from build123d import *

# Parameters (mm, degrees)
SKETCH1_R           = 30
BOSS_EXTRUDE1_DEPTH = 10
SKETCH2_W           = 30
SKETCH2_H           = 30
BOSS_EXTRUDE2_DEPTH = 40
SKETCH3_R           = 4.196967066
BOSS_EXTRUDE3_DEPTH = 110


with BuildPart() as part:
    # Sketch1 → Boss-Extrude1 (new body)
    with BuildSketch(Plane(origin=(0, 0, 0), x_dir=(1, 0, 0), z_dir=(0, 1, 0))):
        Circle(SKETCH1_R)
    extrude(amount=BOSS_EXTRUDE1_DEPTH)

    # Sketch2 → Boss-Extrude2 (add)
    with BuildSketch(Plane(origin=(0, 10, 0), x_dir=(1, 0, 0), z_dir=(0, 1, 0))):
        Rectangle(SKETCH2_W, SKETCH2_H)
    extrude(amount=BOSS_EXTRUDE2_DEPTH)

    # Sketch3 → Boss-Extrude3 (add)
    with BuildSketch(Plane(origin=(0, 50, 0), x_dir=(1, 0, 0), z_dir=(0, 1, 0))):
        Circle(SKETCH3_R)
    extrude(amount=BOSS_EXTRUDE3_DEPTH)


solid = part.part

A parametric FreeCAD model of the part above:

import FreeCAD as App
import Part
import Sketcher
from FreeCAD import Vector


def add_polygon(sketch, points):
    """Adds a closed chain of lines whose ends are joined by coincident constraints."""
    first, n = sketch.GeometryCount, len(points)
    for a, b in zip(points, points[1:] + points[:1]):
        sketch.addGeometry(Part.LineSegment(App.Vector(*a, 0), App.Vector(*b, 0)), False)
    for i in range(n):
        sketch.addConstraint(Sketcher.Constraint("Coincident", first + i, 2, first + (i + 1) % n, 1))

doc = App.newDocument("Part")
params = doc.addObject("Spreadsheet::Sheet", "Params")
for row, (alias, value) in enumerate([
    ("sketch1_diameter", "60 mm"),
    ("pad1_length", "10 mm"),
    ("sketch2_width", "30 mm"),
    ("pad2_length", "40 mm"),
    ("pad3_length", "110 mm"),
], start=1):
    params.set(f"A{row}", alias)
    params.set(f"B{row}", "=" + value)
    params.setAlias(f"B{row}", alias)

body = doc.addObject("PartDesign::Body", "Body")

sketch1 = body.newObject("Sketcher::SketchObject", "Sketch")
sketch1.AttachmentSupport = (doc.getObject("XZ_Plane"), [""])
sketch1.MapMode = "FlatFace"
sketch1.addGeometry(Part.Circle(Vector(0, 0, 0), Vector(0, 0, 1), 30), False)
sketch1.addConstraint(Sketcher.Constraint("Coincident", 0, 3, -1, 1))
sketch1.addConstraint(Sketcher.Constraint("Diameter", 0, 60.0))
sketch1.setExpression("Constraints[1]", "Params.sketch1_diameter")
pad1 = body.newObject("PartDesign::Pad", "Pad")
pad1.Profile = sketch1
pad1.setExpression("Length", "Params.pad1_length")
pad1.Reversed = True

sketch2 = body.newObject("Sketcher::SketchObject", "Sketch001")
sketch2.AttachmentSupport = (doc.getObject("XZ_Plane"), [""])
sketch2.MapMode = "FlatFace"
sketch2.AttachmentOffset = App.Placement(Vector(0, 0, -10), App.Rotation())
add_polygon(sketch2, [(-15, -15), (-15, 15), (15, 15), (15, -15)])
sketch2.addConstraint(Sketcher.Constraint("Vertical", 0))
sketch2.addConstraint(Sketcher.Constraint("Horizontal", 1))
sketch2.addConstraint(Sketcher.Constraint("Vertical", 2))
sketch2.addConstraint(Sketcher.Constraint("Horizontal", 3))
sketch2.addConstraint(Sketcher.Constraint("Symmetric", 0, 2, 2, 2, -1, 1))
sketch2.addConstraint(Sketcher.Constraint("Equal", 3, 0))
sketch2.addConstraint(Sketcher.Constraint("DistanceX", 1, 1, 1, 2, 30.0))
sketch2.setExpression("Constraints[10]", "Params.sketch2_width")
pad2 = body.newObject("PartDesign::Pad", "Pad001")
pad2.Profile = sketch2
pad2.setExpression("Length", "Params.pad2_length")
pad2.Reversed = True

sketch3 = body.newObject("Sketcher::SketchObject", "Sketch002")
sketch3.AttachmentSupport = (doc.getObject("XZ_Plane"), [""])
sketch3.MapMode = "FlatFace"
sketch3.AttachmentOffset = App.Placement(Vector(0, 0, -50), App.Rotation())
sketch3.addGeometry(Part.Circle(Vector(0, 0, 0), Vector(0, 0, 1), 4.2), False)
sketch3.addConstraint(Sketcher.Constraint("Coincident", 0, 3, -1, 1))
sketch3.addConstraint(Sketcher.Constraint("Diameter", 0, 8.393934))
pad3 = body.newObject("PartDesign::Pad", "Pad002")
pad3.Profile = sketch3
pad3.setExpression("Length", "Params.pad3_length")
pad3.Reversed = True

doc.recompute()
